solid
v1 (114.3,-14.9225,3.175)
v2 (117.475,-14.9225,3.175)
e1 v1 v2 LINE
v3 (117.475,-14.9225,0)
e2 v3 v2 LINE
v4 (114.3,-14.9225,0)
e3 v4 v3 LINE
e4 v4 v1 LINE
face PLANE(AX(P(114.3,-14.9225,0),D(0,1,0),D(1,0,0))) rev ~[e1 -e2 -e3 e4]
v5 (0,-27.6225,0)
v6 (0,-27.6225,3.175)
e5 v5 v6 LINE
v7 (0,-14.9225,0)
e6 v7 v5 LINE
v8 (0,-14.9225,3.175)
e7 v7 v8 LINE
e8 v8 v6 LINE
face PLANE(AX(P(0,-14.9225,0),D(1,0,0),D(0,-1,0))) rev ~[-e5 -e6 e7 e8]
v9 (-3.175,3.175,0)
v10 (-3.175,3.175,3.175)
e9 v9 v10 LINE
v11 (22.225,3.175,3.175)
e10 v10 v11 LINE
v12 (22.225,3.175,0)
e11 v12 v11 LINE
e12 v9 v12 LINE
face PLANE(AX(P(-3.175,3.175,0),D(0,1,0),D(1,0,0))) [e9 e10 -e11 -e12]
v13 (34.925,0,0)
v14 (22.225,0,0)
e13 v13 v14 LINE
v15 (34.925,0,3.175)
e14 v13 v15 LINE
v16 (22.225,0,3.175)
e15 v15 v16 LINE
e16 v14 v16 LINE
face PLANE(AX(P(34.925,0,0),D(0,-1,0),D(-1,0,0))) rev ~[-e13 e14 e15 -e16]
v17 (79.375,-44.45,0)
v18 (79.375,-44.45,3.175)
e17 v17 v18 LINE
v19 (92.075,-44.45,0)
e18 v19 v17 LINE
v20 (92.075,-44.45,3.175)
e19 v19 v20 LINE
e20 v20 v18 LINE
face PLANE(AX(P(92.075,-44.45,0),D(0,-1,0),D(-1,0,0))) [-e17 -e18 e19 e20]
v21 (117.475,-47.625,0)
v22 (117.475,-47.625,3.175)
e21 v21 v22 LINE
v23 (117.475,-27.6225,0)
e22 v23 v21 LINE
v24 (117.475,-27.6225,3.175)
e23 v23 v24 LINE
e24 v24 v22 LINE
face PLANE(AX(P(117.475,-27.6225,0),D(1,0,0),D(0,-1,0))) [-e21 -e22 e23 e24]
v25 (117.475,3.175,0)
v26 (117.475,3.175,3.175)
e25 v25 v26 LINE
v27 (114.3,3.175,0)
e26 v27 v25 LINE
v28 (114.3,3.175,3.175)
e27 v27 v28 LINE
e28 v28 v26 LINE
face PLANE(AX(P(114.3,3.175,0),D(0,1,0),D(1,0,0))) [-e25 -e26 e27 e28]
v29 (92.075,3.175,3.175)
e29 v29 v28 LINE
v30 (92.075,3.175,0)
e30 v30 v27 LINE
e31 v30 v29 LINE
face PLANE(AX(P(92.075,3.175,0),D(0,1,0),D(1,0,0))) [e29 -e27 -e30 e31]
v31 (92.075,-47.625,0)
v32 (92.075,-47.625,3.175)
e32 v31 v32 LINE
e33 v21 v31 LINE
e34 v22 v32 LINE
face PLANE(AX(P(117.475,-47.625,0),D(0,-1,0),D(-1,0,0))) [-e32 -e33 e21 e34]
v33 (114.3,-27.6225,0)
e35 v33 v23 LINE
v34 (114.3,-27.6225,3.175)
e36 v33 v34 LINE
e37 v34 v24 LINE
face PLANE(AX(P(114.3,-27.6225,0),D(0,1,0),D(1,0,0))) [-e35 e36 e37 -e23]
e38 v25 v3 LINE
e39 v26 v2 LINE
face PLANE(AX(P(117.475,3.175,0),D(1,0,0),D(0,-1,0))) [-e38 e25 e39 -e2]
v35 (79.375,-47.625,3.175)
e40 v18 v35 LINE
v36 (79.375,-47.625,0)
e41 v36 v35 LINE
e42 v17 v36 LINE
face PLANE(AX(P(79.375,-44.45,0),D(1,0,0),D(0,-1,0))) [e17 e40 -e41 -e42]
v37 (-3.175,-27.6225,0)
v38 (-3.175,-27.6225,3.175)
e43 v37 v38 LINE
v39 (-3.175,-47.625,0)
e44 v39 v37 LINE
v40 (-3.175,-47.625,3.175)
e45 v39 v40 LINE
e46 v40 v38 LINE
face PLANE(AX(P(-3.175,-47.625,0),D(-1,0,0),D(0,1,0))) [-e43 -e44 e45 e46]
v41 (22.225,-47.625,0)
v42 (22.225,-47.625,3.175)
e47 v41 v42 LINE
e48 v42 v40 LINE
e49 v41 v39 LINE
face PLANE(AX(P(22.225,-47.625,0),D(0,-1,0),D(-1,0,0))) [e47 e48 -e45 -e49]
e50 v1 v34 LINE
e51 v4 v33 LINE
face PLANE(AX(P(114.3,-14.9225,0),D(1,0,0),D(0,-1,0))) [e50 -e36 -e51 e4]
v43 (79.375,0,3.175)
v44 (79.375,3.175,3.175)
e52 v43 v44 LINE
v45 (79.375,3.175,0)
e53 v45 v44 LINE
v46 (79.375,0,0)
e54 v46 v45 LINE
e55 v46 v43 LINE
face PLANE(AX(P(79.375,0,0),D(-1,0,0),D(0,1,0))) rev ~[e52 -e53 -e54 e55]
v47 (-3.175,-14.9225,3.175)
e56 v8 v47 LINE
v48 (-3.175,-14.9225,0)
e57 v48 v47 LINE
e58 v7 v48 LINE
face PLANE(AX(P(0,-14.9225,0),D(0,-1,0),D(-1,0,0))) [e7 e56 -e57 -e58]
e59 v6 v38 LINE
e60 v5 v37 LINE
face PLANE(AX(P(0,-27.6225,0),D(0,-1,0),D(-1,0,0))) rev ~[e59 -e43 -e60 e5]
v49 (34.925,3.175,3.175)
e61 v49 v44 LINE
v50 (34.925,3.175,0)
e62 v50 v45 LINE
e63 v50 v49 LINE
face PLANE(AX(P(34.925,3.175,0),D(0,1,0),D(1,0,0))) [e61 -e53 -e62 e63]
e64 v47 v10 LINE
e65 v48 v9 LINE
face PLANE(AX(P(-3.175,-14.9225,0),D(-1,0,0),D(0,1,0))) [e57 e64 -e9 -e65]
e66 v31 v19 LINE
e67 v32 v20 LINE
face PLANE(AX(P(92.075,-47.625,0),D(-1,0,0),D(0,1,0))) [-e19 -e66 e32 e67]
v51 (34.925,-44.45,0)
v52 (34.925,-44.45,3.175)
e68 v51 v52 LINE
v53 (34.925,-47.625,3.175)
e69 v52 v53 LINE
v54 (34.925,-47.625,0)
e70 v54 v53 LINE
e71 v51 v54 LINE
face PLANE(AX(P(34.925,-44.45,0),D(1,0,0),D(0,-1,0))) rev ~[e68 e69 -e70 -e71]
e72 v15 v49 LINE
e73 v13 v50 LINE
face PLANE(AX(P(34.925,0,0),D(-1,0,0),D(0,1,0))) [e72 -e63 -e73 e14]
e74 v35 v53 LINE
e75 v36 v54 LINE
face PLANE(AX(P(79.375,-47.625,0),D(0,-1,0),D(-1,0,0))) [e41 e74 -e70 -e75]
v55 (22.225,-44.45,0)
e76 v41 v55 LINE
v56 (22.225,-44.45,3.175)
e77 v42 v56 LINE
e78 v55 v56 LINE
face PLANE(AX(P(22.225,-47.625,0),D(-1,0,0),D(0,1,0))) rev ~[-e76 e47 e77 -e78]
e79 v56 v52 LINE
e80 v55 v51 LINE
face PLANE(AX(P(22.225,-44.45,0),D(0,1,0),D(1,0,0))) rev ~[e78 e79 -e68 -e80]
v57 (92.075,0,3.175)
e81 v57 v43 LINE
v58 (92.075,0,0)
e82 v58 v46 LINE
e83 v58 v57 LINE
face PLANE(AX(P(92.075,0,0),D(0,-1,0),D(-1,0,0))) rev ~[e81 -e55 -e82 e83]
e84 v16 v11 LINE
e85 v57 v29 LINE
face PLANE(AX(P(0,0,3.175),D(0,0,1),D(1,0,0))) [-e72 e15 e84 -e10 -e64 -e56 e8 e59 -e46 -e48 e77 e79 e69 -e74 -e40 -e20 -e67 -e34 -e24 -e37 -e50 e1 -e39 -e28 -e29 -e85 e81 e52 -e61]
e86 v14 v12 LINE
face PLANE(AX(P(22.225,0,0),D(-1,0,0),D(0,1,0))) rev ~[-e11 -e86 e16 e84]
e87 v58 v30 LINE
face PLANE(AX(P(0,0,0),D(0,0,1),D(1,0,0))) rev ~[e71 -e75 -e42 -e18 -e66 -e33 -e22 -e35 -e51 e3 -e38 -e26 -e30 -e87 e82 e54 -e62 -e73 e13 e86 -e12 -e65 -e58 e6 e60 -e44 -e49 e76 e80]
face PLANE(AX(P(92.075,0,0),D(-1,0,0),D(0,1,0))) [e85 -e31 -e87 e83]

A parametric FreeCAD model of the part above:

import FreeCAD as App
import Part
import Sketcher

V = App.Vector
Q = App.Units.Quantity

doc = App.newDocument("Part")
body = doc.addObject("PartDesign::Body", "Body")

# Sketch on XY plane
sketch1 = body.newObject("Sketcher::SketchObject", "Sketch")
sketch1.AttachmentSupport = (doc.getObject("XY_Plane"), [""])
sketch1.MapMode = "FlatFace"
sketch1.addGeometry(Part.LineSegment(V(117.475, -14.9225, 0), V(117.475, 3.175, 0)), False)
sketch1.addGeometry(Part.LineSegment(V(117.475, 3.175, 0), V(92.075, 3.175, 0)), False)
sketch1.addGeometry(Part.LineSegment(V(92.075, 3.175, 0), V(92.075, 0, 0)), False)
sketch1.addGeometry(Part.LineSegment(V(92.075, 0, 0), V(79.375, 0, 0)), False)
sketch1.addGeometry(Part.LineSegment(V(79.375, 0, 0), V(79.375, 3.175, 0)), False)
sketch1.addGeometry(Part.LineSegment(V(79.375, 3.175, 0), V(34.925, 3.175, 0)), False)
sketch1.addGeometry(Part.LineSegment(V(34.925, 3.175, 0), V(34.925, 0, 0)), False)
sketch1.addGeometry(Part.LineSegment(V(34.925, 0, 0), V(22.225, 0, 0)), False)
sketch1.addGeometry(Part.LineSegment(V(22.225, 0, 0), V(22.225, 3.175, 0)), False)
sketch1.addGeometry(Part.LineSegment(V(22.225, 3.175, 0), V(-3.175, 3.175, 0)), False)
sketch1.addGeometry(Part.LineSegment(V(-3.175, 3.175, 0), V(-3.175, -14.9225, 0)), False)
sketch1.addGeometry(Part.LineSegment(V(-3.175, -14.9225, 0), V(0, -14.9225, 0)), False)
sketch1.addGeometry(Part.LineSegment(V(0, -14.9225, 0), V(0, -27.6225, 0)), False)
sketch1.addGeometry(Part.LineSegment(V(0, -27.6225, 0), V(-3.175, -27.6225, 0)), False)
sketch1.addGeometry(Part.LineSegment(V(-3.175, -27.6225, 0), V(-3.175, -47.625, 0)), False)
sketch1.addGeometry(Part.LineSegment(V(-3.175, -47.625, 0), V(22.225, -47.625, 0)), False)
sketch1.addGeometry(Part.LineSegment(V(22.225, -47.625, 0), V(22.225, -44.45, 0)), False)
sketch1.addGeometry(Part.LineSegment(V(22.225, -44.45, 0), V(34.925, -44.45, 0)), False)
sketch1.addGeometry(Part.LineSegment(V(34.925, -44.45, 0), V(34.925, -47.625, 0)), False)
sketch1.addGeometry(Part.LineSegment(V(34.925, -47.625, 0), V(79.375, -47.625, 0)), False)
sketch1.addGeometry(Part.LineSegment(V(79.375, -47.625, 0), V(79.375, -44.45, 0)), False)
sketch1.addGeometry(Part.LineSegment(V(79.375, -44.45, 0), V(92.075, -44.45, 0)), False)
sketch1.addGeometry(Part.LineSegment(V(92.075, -44.45, 0), V(92.075, -47.625, 0)), False)
sketch1.addGeometry(Part.LineSegment(V(92.075, -47.625, 0), V(117.475, -47.625, 0)), False)
sketch1.addGeometry(Part.LineSegment(V(117.475, -47.625, 0), V(117.475, -27.6225, 0)), False)
sketch1.addGeometry(Part.LineSegment(V(117.475, -27.6225, 0), V(114.3, -27.6225, 0)), False)
sketch1.addGeometry(Part.LineSegment(V(114.3, -27.6225, 0), V(114.3, -14.9225, 0)), False)
sketch1.addGeometry(Part.LineSegment(V(114.3, -14.9225, 0), V(117.475, -14.9225, 0)), False)
sketch1.addConstraint(Sketcher.Constraint("Coincident", 0, 2, 1, 1))
sketch1.addConstraint(Sketcher.Constraint("Coincident", 1, 2, 2, 1))
sketch1.addConstraint(Sketcher.Constraint("Coincident", 2, 2, 3, 1))
sketch1.addConstraint(Sketcher.Constraint("Coincident", 3, 2, 4, 1))
sketch1.addConstraint(Sketcher.Constraint("Coincident", 4, 2, 5, 1))
sketch1.addConstraint(Sketcher.Constraint("Coincident", 5, 2, 6, 1))
sketch1.addConstraint(Sketcher.Constraint("Coincident", 6, 2, 7, 1))
sketch1.addConstraint(Sketcher.Constraint("Coincident", 7, 2, 8, 1))
sketch1.addConstraint(Sketcher.Constraint("Coincident", 8, 2, 9, 1))
sketch1.addConstraint(Sketcher.Constraint("Coincident", 9, 2, 10, 1))
sketch1.addConstraint(Sketcher.Constraint("Coincident", 10, 2, 11, 1))
sketch1.addConstraint(Sketcher.Constraint("Coincident", 11, 2, 12, 1))
sketch1.addConstraint(Sketcher.Constraint("Coincident", 12, 2, 13, 1))
sketch1.addConstraint(Sketcher.Constraint("Coincident", 13, 2, 14, 1))
sketch1.addConstraint(Sketcher.Constraint("Coincident", 14, 2, 15, 1))
sketch1.addConstraint(Sketcher.Constraint("Coincident", 15, 2, 16, 1))
sketch1.addConstraint(Sketcher.Constraint("Coincident", 16, 2, 17, 1))
sketch1.addConstraint(Sketcher.Constraint("Coincident", 17, 2, 18, 1))
sketch1.addConstraint(Sketcher.Constraint("Coincident", 18, 2, 19, 1))
sketch1.addConstraint(Sketcher.Constraint("Coincident", 19, 2, 20, 1))
sketch1.addConstraint(Sketcher.Constraint("Coincident", 20, 2, 21, 1))
sketch1.addConstraint(Sketcher.Constraint("Coincident", 21, 2, 22, 1))
sketch1.addConstraint(Sketcher.Constraint("Coincident", 22, 2, 23, 1))
sketch1.addConstraint(Sketcher.Constraint("Coincident", 23, 2, 24, 1))
sketch1.addConstraint(Sketcher.Constraint("Coincident", 24, 2, 25, 1))
sketch1.addConstraint(Sketcher.Constraint("Coincident", 25, 2, 26, 1))
sketch1.addConstraint(Sketcher.Constraint("Coincident", 26, 2, 27, 1))
sketch1.addConstraint(Sketcher.Constraint("Coincident", 27, 2, 0, 1))
sketch1.addConstraint(Sketcher.Constraint("Vertical", 0))
sketch1.addConstraint(Sketcher.Constraint("Horizontal", 1))
sketch1.addConstraint(Sketcher.Constraint("Vertical", 2))
sketch1.addConstraint(Sketcher.Constraint("Horizontal", 3))
sketch1.addConstraint(Sketcher.Constraint("Vertical", 4))
sketch1.addConstraint(Sketcher.Constraint("Horizontal", 5))
sketch1.addConstraint(Sketcher.Constraint("Vertical", 6))
sketch1.addConstraint(Sketcher.Constraint("Horizontal", 7))
sketch1.addConstraint(Sketcher.Constraint("Vertical", 8))
sketch1.addConstraint(Sketcher.Constraint("Horizontal", 9))
sketch1.addConstraint(Sketcher.Constraint("Vertical", 10))
sketch1.addConstraint(Sketcher.Constraint("Horizontal", 11))
sketch1.addConstraint(Sketcher.Constraint("Vertical", 12))
sketch1.addConstraint(Sketcher.Constraint("Horizontal", 13))
sketch1.addConstraint(Sketcher.Constraint("Vertical", 14))
sketch1.addConstraint(Sketcher.Constraint("Horizontal", 15))
sketch1.addConstraint(Sketcher.Constraint("Vertical", 16))
sketch1.addConstraint(Sketcher.Constraint("Horizontal", 17))
sketch1.addConstraint(Sketcher.Constraint("Vertical", 18))
sketch1.addConstraint(Sketcher.Constraint("Horizontal", 19))
sketch1.addConstraint(Sketcher.Constraint("Vertical", 20))
sketch1.addConstraint(Sketcher.Constraint("Horizontal", 21))
sketch1.addConstraint(Sketcher.Constraint("Vertical", 22))
sketch1.addConstraint(Sketcher.Constraint("Horizontal", 23))
sketch1.addConstraint(Sketcher.Constraint("Vertical", 24))
sketch1.addConstraint(Sketcher.Constraint("Horizontal", 25))
sketch1.addConstraint(Sketcher.Constraint("Vertical", 26))
sketch1.addConstraint(Sketcher.Constraint("Horizontal", 27))
sketch1.addConstraint(Sketcher.Constraint("PointOnObject", 2, 2, -1))
sketch1.addConstraint(Sketcher.Constraint("PointOnObject", 6, 2, -1))
sketch1.addConstraint(Sketcher.Constraint("PointOnObject", 11, 2, -2))
sketch1.addConstraint(Sketcher.Constraint("Horizontal", 1, 2, 4, 2))
sketch1.addConstraint(Sketcher.Constraint("Horizontal", 5, 2, 8, 2))
sketch1.addConstraint(Sketcher.Constraint("Horizontal", 15, 2, 18, 2))
sketch1.addConstraint(Sketcher.Constraint("Horizontal", 17, 2, 20, 2))
sketch1.addConstraint(Sketcher.Constraint("Horizontal", 19, 2, 22, 2))
sketch1.addConstraint(Sketcher.Constraint("Horizontal", 13, 2, 24, 2))
sketch1.addConstraint(Sketcher.Constraint("Horizontal", 11, 2, 26, 2))
sketch1.addConstraint(Sketcher.Constraint("Vertical", 10, 2, 13, 2))
sketch1.addConstraint(Sketcher.Constraint("Vertical", 8, 2, 15, 2))
sketch1.addConstraint(Sketcher.Constraint("Vertical", 6, 2, 17, 2))
sketch1.addConstraint(Sketcher.Constraint("Vertical", 4, 2, 19, 2))
sketch1.addConstraint(Sketcher.Constraint("Vertical", 2, 2, 21, 2))
sketch1.addConstraint(Sketcher.Constraint("Vertical", 0, 2, 23, 2))
sketch1.addConstraint(Sketcher.Constraint("Equal", 3, 7))
sketch1.addConstraint(Sketcher.Constraint("Equal", 1, 9))
sketch1.addConstraint(Sketcher.Constraint("Equal", 13, 25))
sketch1.addConstraint(Sketcher.Constraint("Equal", 27, 2))
sketch1.addConstraint(Sketcher.Constraint("Equal", 21, 12))
sketch1.addConstraint(Sketcher.Constraint("Equal", 8, 16))
sketch1.addConstraint(Sketcher.Constraint("DistanceX", 1, 2, 1, 1, Q("1 in")))
sketch1.addConstraint(Sketcher.Constraint("DistanceX", 11, 1, 11, 2, Q("0.125 in")))
sketch1.addConstraint(Sketcher.Constraint("DistanceX", 3, 2, 3, 1, Q("0.5 in")))
sketch1.addConstraint(Sketcher.Constraint("DistanceY", 14, 2, 9, 2, Q("2 in")))
sketch1.addConstraint(Sketcher.Constraint("DistanceX", 5, 2, 5, 1, Q("1.75 in")))
sketch1.addConstraint(Sketcher.Constraint("DistanceY", 0, 1, 0, 2, Q("0.7125 in")))
pad1 = body.newObject("PartDesign::Pad", "Pad")
pad1.Profile = sketch1
pad1.Length = Q("0.125 in")

doc.recompute()
